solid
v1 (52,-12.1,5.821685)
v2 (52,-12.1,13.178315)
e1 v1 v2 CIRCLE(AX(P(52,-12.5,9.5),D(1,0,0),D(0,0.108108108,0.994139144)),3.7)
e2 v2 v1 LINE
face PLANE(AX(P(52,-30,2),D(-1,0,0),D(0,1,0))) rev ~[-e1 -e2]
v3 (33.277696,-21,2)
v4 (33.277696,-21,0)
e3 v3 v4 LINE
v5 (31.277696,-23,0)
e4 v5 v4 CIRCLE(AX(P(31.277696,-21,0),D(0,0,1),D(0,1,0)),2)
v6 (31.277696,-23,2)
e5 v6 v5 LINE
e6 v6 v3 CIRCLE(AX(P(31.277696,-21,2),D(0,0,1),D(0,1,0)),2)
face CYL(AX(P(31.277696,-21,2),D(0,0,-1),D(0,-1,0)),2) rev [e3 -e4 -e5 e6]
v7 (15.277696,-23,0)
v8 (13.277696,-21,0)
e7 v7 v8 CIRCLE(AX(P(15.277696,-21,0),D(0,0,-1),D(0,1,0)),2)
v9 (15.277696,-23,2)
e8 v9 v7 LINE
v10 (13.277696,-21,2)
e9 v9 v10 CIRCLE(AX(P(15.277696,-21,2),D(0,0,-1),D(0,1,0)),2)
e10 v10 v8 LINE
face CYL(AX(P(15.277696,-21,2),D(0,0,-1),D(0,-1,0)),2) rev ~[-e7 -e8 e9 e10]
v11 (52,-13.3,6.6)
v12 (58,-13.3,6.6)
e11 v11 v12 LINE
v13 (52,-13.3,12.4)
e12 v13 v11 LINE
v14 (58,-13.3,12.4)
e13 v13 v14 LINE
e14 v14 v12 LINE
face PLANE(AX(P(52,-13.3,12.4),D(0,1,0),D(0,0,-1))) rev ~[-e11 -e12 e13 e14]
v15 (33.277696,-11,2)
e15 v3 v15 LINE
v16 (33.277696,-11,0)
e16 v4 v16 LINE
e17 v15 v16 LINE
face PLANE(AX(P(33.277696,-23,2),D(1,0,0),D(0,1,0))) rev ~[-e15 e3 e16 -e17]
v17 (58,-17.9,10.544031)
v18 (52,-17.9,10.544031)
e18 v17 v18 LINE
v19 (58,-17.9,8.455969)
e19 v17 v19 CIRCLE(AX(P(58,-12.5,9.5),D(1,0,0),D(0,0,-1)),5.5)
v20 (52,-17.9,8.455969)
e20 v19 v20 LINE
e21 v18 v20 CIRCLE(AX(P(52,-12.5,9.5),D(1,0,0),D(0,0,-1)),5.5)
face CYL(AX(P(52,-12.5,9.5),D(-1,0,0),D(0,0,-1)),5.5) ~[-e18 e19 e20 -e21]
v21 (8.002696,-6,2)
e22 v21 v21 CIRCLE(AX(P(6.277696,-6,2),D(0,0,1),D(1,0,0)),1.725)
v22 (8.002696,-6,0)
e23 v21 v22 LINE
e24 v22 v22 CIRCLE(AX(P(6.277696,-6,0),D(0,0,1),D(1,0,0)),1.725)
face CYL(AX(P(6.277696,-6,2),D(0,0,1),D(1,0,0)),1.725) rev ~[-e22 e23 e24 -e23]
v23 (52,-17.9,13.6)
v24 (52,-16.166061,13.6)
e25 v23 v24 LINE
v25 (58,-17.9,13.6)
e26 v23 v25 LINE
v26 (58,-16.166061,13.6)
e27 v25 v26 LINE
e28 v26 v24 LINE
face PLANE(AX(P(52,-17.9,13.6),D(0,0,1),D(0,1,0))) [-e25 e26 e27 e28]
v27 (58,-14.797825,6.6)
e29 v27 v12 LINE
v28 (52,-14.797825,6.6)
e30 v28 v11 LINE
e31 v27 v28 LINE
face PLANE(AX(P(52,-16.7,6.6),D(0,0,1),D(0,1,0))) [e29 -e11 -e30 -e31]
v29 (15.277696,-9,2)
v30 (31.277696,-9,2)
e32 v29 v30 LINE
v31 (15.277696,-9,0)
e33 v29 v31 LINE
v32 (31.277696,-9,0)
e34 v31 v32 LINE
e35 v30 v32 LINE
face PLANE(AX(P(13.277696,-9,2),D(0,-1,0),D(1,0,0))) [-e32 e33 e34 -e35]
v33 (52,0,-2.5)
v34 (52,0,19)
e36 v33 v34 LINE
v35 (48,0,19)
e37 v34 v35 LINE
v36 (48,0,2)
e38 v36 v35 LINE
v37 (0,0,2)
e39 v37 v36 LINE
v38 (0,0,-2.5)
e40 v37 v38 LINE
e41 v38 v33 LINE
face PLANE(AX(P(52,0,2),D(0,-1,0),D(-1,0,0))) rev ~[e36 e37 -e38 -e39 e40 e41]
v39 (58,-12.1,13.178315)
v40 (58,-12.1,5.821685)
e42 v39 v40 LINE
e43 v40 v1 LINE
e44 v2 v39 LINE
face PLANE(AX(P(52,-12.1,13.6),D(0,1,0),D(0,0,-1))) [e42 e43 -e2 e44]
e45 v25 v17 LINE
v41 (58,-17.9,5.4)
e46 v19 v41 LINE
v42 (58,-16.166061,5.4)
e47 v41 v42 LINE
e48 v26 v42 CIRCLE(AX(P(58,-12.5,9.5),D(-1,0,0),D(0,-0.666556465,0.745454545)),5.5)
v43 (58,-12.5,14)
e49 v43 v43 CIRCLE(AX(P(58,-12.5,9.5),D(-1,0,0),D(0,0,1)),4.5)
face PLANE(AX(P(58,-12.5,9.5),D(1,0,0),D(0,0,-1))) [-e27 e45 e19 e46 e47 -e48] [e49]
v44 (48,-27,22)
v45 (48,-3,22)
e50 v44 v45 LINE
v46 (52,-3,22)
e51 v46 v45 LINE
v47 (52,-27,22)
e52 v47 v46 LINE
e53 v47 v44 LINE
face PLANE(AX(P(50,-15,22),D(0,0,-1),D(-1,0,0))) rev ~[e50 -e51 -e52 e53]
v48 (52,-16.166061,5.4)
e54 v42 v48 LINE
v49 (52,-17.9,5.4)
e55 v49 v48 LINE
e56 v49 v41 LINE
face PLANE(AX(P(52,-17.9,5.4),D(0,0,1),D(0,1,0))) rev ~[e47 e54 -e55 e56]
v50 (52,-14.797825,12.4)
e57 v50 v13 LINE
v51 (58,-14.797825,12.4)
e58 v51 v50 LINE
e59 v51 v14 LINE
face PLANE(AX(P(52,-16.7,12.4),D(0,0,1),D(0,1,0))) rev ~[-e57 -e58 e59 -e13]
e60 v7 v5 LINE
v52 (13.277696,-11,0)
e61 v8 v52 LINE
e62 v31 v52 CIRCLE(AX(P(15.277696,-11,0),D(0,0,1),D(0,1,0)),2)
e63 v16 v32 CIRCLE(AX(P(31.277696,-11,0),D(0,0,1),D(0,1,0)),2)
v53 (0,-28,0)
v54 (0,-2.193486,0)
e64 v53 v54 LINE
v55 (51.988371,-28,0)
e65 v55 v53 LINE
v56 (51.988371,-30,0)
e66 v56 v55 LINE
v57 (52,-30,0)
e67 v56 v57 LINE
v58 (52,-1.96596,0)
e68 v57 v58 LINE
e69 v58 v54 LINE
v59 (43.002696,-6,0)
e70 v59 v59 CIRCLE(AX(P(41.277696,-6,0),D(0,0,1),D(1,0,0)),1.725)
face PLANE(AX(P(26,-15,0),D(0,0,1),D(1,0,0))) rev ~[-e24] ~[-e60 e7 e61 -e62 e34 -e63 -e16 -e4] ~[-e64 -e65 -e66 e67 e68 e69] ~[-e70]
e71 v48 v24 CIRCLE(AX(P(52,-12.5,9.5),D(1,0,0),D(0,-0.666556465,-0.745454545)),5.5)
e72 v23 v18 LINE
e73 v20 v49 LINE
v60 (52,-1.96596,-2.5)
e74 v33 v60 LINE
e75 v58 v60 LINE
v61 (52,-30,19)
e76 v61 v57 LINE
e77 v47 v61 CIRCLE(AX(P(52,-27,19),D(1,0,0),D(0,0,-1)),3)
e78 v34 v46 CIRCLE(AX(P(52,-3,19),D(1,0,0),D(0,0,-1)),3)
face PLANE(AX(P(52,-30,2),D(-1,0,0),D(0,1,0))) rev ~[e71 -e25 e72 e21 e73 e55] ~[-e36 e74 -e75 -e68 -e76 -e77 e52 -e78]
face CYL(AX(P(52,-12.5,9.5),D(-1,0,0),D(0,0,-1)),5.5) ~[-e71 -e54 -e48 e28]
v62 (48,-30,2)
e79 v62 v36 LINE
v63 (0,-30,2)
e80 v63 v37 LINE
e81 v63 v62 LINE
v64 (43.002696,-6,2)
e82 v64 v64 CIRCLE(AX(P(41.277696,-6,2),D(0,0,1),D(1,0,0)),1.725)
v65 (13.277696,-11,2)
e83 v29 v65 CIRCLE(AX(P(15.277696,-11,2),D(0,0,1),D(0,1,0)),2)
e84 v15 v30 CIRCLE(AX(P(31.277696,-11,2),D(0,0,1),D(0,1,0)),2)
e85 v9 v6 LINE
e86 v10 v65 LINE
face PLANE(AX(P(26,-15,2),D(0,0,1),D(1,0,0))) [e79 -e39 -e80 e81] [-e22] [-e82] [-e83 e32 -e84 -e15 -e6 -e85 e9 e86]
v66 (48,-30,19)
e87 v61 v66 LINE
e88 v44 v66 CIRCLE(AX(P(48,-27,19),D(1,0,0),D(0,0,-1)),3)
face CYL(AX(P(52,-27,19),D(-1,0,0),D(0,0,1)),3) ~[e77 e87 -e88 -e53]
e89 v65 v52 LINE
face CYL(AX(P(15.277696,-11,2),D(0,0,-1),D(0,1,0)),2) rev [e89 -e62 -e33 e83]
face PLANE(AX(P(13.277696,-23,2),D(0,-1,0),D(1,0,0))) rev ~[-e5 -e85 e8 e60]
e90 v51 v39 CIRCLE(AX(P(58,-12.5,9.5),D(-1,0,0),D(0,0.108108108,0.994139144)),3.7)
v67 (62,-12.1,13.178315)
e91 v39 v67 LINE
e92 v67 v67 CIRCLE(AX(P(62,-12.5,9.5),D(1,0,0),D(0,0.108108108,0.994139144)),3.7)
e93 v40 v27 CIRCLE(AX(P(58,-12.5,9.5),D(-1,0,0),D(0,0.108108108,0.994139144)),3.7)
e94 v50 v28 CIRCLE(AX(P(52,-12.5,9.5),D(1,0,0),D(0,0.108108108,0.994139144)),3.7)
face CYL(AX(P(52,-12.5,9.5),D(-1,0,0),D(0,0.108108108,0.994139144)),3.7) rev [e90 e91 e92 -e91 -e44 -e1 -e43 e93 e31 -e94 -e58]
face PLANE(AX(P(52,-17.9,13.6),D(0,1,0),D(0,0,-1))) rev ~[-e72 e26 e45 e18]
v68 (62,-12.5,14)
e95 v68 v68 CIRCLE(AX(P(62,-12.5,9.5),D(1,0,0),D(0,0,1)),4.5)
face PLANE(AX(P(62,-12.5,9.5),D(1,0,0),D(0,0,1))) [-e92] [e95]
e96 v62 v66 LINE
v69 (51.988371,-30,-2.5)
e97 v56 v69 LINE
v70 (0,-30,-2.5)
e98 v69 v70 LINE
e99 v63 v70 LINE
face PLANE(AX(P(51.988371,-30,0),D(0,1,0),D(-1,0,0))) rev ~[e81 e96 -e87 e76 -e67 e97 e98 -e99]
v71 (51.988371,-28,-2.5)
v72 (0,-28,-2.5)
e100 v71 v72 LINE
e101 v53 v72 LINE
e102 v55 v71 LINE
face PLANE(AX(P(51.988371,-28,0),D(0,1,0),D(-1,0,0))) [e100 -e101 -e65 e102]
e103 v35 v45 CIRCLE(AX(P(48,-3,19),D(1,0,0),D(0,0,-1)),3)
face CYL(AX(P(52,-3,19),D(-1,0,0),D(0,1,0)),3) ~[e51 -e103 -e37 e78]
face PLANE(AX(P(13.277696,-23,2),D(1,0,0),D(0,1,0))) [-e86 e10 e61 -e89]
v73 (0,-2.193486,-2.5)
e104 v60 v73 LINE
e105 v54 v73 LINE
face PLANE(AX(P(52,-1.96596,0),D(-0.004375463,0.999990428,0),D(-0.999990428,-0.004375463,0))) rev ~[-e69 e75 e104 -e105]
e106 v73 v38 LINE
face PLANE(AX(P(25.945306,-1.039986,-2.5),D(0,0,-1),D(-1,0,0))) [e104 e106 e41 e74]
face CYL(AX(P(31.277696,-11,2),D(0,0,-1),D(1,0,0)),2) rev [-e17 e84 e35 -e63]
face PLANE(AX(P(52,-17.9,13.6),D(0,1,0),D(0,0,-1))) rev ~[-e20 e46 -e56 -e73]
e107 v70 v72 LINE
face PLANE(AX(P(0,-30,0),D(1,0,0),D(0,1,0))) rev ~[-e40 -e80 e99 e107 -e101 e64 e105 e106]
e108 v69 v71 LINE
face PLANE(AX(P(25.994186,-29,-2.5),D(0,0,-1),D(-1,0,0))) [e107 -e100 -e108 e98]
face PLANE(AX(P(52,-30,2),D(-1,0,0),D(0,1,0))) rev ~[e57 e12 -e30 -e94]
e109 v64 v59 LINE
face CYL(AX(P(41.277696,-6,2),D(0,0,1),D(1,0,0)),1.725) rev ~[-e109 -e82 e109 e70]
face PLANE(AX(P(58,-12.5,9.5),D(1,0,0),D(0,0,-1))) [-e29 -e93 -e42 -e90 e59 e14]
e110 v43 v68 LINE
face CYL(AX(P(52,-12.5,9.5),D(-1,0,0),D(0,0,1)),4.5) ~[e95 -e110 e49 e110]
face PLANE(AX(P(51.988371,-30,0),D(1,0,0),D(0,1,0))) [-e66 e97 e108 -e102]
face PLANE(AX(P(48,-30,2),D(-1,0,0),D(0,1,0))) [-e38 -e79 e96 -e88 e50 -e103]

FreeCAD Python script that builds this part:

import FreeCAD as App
import Part
import Sketcher

V = App.Vector
Q = App.Units.Quantity


def edges_at(feature, points):
    """Names of the edges that pass closest to the given points."""
    edges = feature.Shape.Edges
    near = lambda p: min(range(len(edges)), key=lambda i: edges[i].distToShape(Part.Vertex(*p))[0])
    return sorted({f"Edge{near(p) + 1}" for p in points})

doc = App.newDocument("Part")
params = doc.addObject("Spreadsheet::Sheet", "Params")
for row, (alias, value) in enumerate([
    ("sketch1_width", "52 mm"),
    ("sketch1_height", "30 mm"),
    ("pad1_length", "2 mm"),
    ("sketch2_width", "4 mm"),
    ("sketch2_height", "30 mm"),
    ("pad2_length", "20 mm"),
    ("fillet_radius", "3 mm"),
    ("sketch3_diameter", "3.45 mm"),
    ("pocket1_length", "2 mm"),
    ("sketch4_width", "52 mm"),
    ("sketch4_height", "2 mm"),
    ("pad3_length", "2.5 mm"),
    ("sketch5_width", "20 mm"),
    ("sketch5_height", "14 mm"),
    ("pocket2_length", "2 mm"),
    ("sketch6_width", "5.8 mm"),
    ("sketch6_width2", "3.4 mm"),
    ("sketch6_height", "8.2 mm"),
    ("pad4_length", "6 mm"),
    ("sketch7_diameter", "11 mm"),
    ("sketch7_diameter2", "8.5 mm"),
    ("pad5_length", "6 mm"),
    ("sketch8_diameter", "9 mm"),
    ("sketch8_diameter2", "7.4 mm"),
    ("pad6_length", "10 mm"),
    ("fillet2_radius", "2 mm"),
], start=1):
    params.set(f"A{row}", alias)
    params.set(f"B{row}", "=" + value)
    params.setAlias(f"B{row}", alias)

body = doc.addObject("PartDesign::Body", "Body")

sketch1 = body.newObject("Sketcher::SketchObject", "Sketch")
sketch1.AttachmentSupport = (doc.getObject("XY_Plane"), [""])
sketch1.MapMode = "FlatFace"
sketch1.addGeometry(Part.LineSegment(V(0, 0, 0), V(0, -30, 0)), False)
sketch1.addGeometry(Part.LineSegment(V(0, -30, 0), V(52, -30, 0)), False)
sketch1.addGeometry(Part.LineSegment(V(52, -30, 0), V(52, 0, 0)), False)
sketch1.addGeometry(Part.LineSegment(V(52, 0, 0), V(0, 0, 0)), False)
sketch1.addConstraint(Sketcher.Constraint("Coincident", 0, 2, 1, 1))
sketch1.addConstraint(Sketcher.Constraint("Coincident", 1, 2, 2, 1))
sketch1.addConstraint(Sketcher.Constraint("Coincident", 2, 2, 3, 1))
sketch1.addConstraint(Sketcher.Constraint("Coincident", 3, 2, 0, 1))
sketch1.addConstraint(Sketcher.Constraint("Vertical", 0))
sketch1.addConstraint(Sketcher.Constraint("Horizontal", 1))
sketch1.addConstraint(Sketcher.Constraint("Vertical", 2))
sketch1.addConstraint(Sketcher.Constraint("Horizontal", 3))
sketch1.addConstraint(Sketcher.Constraint("Coincident", 3, 2, -1, 1))
sketch1.addConstraint(Sketcher.Constraint("DistanceX", 1, 1, 1, 2, Q("52 mm")))
sketch1.addConstraint(Sketcher.Constraint("DistanceY", 0, 2, 0, 1, Q("30 mm")))
sketch1.setExpression("Constraints[9]", "Params.sketch1_width")
sketch1.setExpression("Constraints[10]", "Params.sketch1_height")
pad1 = body.newObject("PartDesign::Pad", "Pad")
pad1.Profile = sketch1
pad1.setExpression("Length", "Params.pad1_length")

sketch2 = body.newObject("Sketcher::SketchObject", "Sketch001")
sketch2.AttachmentSupport = (doc.getObject("XY_Plane"), [""])
sketch2.MapMode = "FlatFace"
sketch2.AttachmentOffset = App.Placement(V(0, 0, 2), App.Rotation())
sketch2.addGeometry(Part.LineSegment(V(52, 0, 0), V(52, -30, 0)), False)
sketch2.addGeometry(Part.LineSegment(V(52, -30, 0), V(48, -30, 0)), False)
sketch2.addGeometry(Part.LineSegment(V(48, -30, 0), V(48, 0, 0)), False)
sketch2.addGeometry(Part.LineSegment(V(48, 0, 0), V(52, 0, 0)), False)
sketch2.addConstraint(Sketcher.Constraint("Coincident", 0, 2, 1, 1))
sketch2.addConstraint(Sketcher.Constraint("Coincident", 1, 2, 2, 1))
sketch2.addConstraint(Sketcher.Constraint("Coincident", 2, 2, 3, 1))
sketch2.addConstraint(Sketcher.Constraint("Coincident", 3, 2, 0, 1))
sketch2.addConstraint(Sketcher.Constraint("Vertical", 0))
sketch2.addConstraint(Sketcher.Constraint("Horizontal", 1))
sketch2.addConstraint(Sketcher.Constraint("Vertical", 2))
sketch2.addConstraint(Sketcher.Constraint("Horizontal", 3))
sketch2.addConstraint(Sketcher.Constraint("PointOnObject", 2, 2, -1))
sketch2.addConstraint(Sketcher.Constraint("DistanceX", 1, 2, 1, 1, Q("4 mm")))
sketch2.addConstraint(Sketcher.Constraint("DistanceY", 0, 2, 0, 1, Q("30 mm")))
sketch2.addConstraint(Sketcher.Constraint("DistanceX", -1, 1, 0, 2, Q("52 mm")))
sketch2.setExpression("Constraints[9]", "Params.sketch2_width")
sketch2.setExpression("Constraints[10]", "Params.sketch2_height")
pad2 = body.newObject("PartDesign::Pad", "Pad001")
pad2.Profile = sketch2
pad2.setExpression("Length", "Params.pad2_length")
doc.recompute()

fillet = body.newObject("PartDesign::Fillet", "Fillet")
fillet.Base = (pad2, edges_at(pad2, [(50, -30, 22), (50, 0, 22)]))
fillet.setExpression("Radius", "Params.fillet_radius")

sketch3 = body.newObject("Sketcher::SketchObject", "Sketch002")
sketch3.AttachmentSupport = (doc.getObject("XY_Plane"), [""])
sketch3.MapMode = "FlatFace"
sketch3.AttachmentOffset = App.Placement(V(0, 0, 2), App.Rotation())
sketch3.addGeometry(Part.Circle(V(41.3, -6, 0), V(0, 0, 1), 1.7), False)
sketch3.addGeometry(Part.Circle(V(6.3, -6, 0), V(0, 0, 1), 1.7), False)
sketch3.addConstraint(Sketcher.Constraint("Equal", 0, 1))
sketch3.addConstraint(Sketcher.Constraint("Horizontal", 0, 3, 1, 3))
sketch3.addConstraint(Sketcher.Constraint("Diameter", 0, Q("3.45 mm")))
sketch3.addConstraint(Sketcher.Constraint("DistanceY", 0, 3, -1, 1, Q("6 mm")))
sketch3.addConstraint(Sketcher.Constraint("DistanceX", 1, 3, 0, 3, Q("35 mm")))
sketch3.addConstraint(Sketcher.Constraint("DistanceX", -1, 1, 0, 3, Q("41.277696 mm")))
sketch3.setExpression("Constraints[2]", "Params.sketch3_diameter")
pocket1 = body.newObject("PartDesign::Pocket", "Pocket")
pocket1.Profile = sketch3
pocket1.setExpression("Length", "Params.pocket1_length")

sketch4 = body.newObject("Sketcher::SketchObject", "Sketch003")
sketch4.AttachmentSupport = (doc.getObject("XY_Plane"), [""])
sketch4.MapMode = "FlatFace"
sketch4.addGeometry(Part.LineSegment(V(52, -28, 0), V(52, -30, 0)), False)
sketch4.addGeometry(Part.LineSegment(V(52, -30, 0), V(0, -30, 0)), False)
sketch4.addGeometry(Part.LineSegment(V(0, -30, 0), V(0, -28, 0)), False)
sketch4.addGeometry(Part.LineSegment(V(0, -28, 0), V(52, -28, 0)), False)
sketch4.addGeometry(Part.LineSegment(V(52, -2, 0), V(0, -2.2, 0)), False)
sketch4.addGeometry(Part.LineSegment(V(0, -2.2, 0), V(0, 0, 0)), False)
sketch4.addGeometry(Part.LineSegment(V(0, 0, 0), V(52, 0, 0)), False)
sketch4.addGeometry(Part.LineSegment(V(52, 0, 0), V(52, -2, 0)), False)
sketch4.addConstraint(Sketcher.Constraint("Coincident", 0, 2, 1, 1))
sketch4.addConstraint(Sketcher.Constraint("Coincident", 1, 2, 2, 1))
sketch4.addConstraint(Sketcher.Constraint("Coincident", 2, 2, 3, 1))
sketch4.addConstraint(Sketcher.Constraint("Coincident", 3, 2, 0, 1))
sketch4.addConstraint(Sketcher.Constraint("Coincident", 4, 2, 5, 1))
sketch4.addConstraint(Sketcher.Constraint("Coincident", 5, 2, 6, 1))
sketch4.addConstraint(Sketcher.Constraint("Coincident", 6, 2, 7, 1))
sketch4.addConstraint(Sketcher.Constraint("Coincident", 7, 2, 4, 1))
sketch4.addConstraint(Sketcher.Constraint("Vertical", 0))
sketch4.addConstraint(Sketcher.Constraint("Horizontal", 1))
sketch4.addConstraint(Sketcher.Constraint("Vertical", 2))
sketch4.addConstraint(Sketcher.Constraint("Horizontal", 3))
sketch4.addConstraint(Sketcher.Constraint("Vertical", 5))
sketch4.addConstraint(Sketcher.Constraint("Horizontal", 6))
sketch4.addConstraint(Sketcher.Constraint("Vertical", 7))
sketch4.addConstraint(Sketcher.Constraint("Coincident", 5, 2, -1, 1))
sketch4.addConstraint(Sketcher.Constraint("PointOnObject", 1, 2, -2))
sketch4.addConstraint(Sketcher.Constraint("DistanceX", 6, 1, 6, 2, Q("52 mm")))
sketch4.addConstraint(Sketcher.Constraint("DistanceY", 0, 2, 0, 1, Q("2 mm")))
sketch4.addConstraint(Sketcher.Constraint("DistanceY", 0, 2, -1, 1, Q("30 mm")))
sketch4.addConstraint(Sketcher.Constraint("DistanceX", 1, 2, 1, 1, Q("51.988371 mm")))
sketch4.addConstraint(Sketcher.Constraint("DistanceY", 7, 2, 7, 1, Q("1.96596 mm")))
sketch4.addConstraint(Sketcher.Constraint("DistanceY", 5, 1, 5, 2, Q("2.193486 mm")))
sketch4.setExpression("Constraints[17]", "Params.sketch4_width")
sketch4.setExpression("Constraints[18]", "Params.sketch4_height")
pad3 = body.newObject("PartDesign::Pad", "Pad002")
pad3.Profile = sketch4
pad3.setExpression("Length", "Params.pad3_length")
pad3.Reversed = True

sketch5 = body.newObject("Sketcher::SketchObject", "Sketch004")
sketch5.AttachmentSupport = (doc.getObject("XY_Plane"), [""])
sketch5.MapMode = "FlatFace"
sketch5.AttachmentOffset = App.Placement(V(0, 0, 2), App.Rotation())
sketch5.addGeometry(Part.LineSegment(V(13, -9, 0), V(13, -23, 0)), False)
sketch5.addGeometry(Part.LineSegment(V(13, -23, 0), V(33, -23, 0)), False)
sketch5.addGeometry(Part.LineSegment(V(33, -23, 0), V(33, -9, 0)), False)
sketch5.addGeometry(Part.LineSegment(V(33, -9, 0), V(13, -9, 0)), False)
sketch5.addConstraint(Sketcher.Constraint("Coincident", 0, 2, 1, 1))
sketch5.addConstraint(Sketcher.Constraint("Coincident", 1, 2, 2, 1))
sketch5.addConstraint(Sketcher.Constraint("Coincident", 2, 2, 3, 1))
sketch5.addConstraint(Sketcher.Constraint("Coincident", 3, 2, 0, 1))
sketch5.addConstraint(Sketcher.Constraint("Vertical", 0))
sketch5.addConstraint(Sketcher.Constraint("Horizontal", 1))
sketch5.addConstraint(Sketcher.Constraint("Vertical", 2))
sketch5.addConstraint(Sketcher.Constraint("Horizontal", 3))
sketch5.addConstraint(Sketcher.Constraint("DistanceX", 1, 1, 1, 2, Q("20 mm")))
sketch5.addConstraint(Sketcher.Constraint("DistanceY", 0, 2, 0, 1, Q("14 mm")))
sketch5.addConstraint(Sketcher.Constraint("DistanceY", 0, 2, -1, 1, Q("23 mm")))
sketch5.addConstraint(Sketcher.Constraint("DistanceX", -1, 1, 0, 2, Q("13.277696 mm")))
sketch5.setExpression("Constraints[8]", "Params.sketch5_width")
sketch5.setExpression("Constraints[9]", "Params.sketch5_height")
pocket2 = body.newObject("PartDesign::Pocket", "Pocket001")
pocket2.Profile = sketch5
pocket2.setExpression("Length", "Params.pocket2_length")

sketch6 = body.newObject("Sketcher::SketchObject", "Sketch005")
sketch6.AttachmentSupport = (doc.getObject("YZ_Plane"), [""])
sketch6.MapMode = "FlatFace"
sketch6.AttachmentOffset = App.Placement(V(0, 0, 52), App.Rotation())
sketch6.addGeometry(Part.LineSegment(V(-12.1, 13.6, 0), V(-17.9, 13.6, 0)), False)
sketch6.addGeometry(Part.LineSegment(V(-17.9, 13.6, 0), V(-17.9, 5.4, 0)), False)
sketch6.addGeometry(Part.LineSegment(V(-17.9, 5.4, 0), V(-12.1, 5.4, 0)), False)
sketch6.addGeometry(Part.LineSegment(V(-12.1, 5.4, 0), V(-12.1, 13.6, 0)), False)
sketch6.addGeometry(Part.LineSegment(V(-16.7, 6.6, 0), V(-16.7, 12.4, 0)), False)
sketch6.addGeometry(Part.LineSegment(V(-16.7, 12.4, 0), V(-13.3, 12.4, 0)), False)
sketch6.addGeometry(Part.LineSegment(V(-13.3, 12.4, 0), V(-13.3, 6.6, 0)), False)
sketch6.addGeometry(Part.LineSegment(V(-13.3, 6.6, 0), V(-16.7, 6.6, 0)), False)
sketch6.addConstraint(Sketcher.Constraint("Coincident", 0, 2, 1, 1))
sketch6.addConstraint(Sketcher.Constraint("Coincident", 1, 2, 2, 1))
sketch6.addConstraint(Sketcher.Constraint("Coincident", 2, 2, 3, 1))
sketch6.addConstraint(Sketcher.Constraint("Coincident", 3, 2, 0, 1))
sketch6.addConstraint(Sketcher.Constraint("Coincident", 4, 2, 5, 1))
sketch6.addConstraint(Sketcher.Constraint("Coincident", 5, 2, 6, 1))
sketch6.addConstraint(Sketcher.Constraint("Coincident", 6, 2, 7, 1))
sketch6.addConstraint(Sketcher.Constraint("Coincident", 7, 2, 4, 1))
sketch6.addConstraint(Sketcher.Constraint("Horizontal", 0))
sketch6.addConstraint(Sketcher.Constraint("Vertical", 1))
sketch6.addConstraint(Sketcher.Constraint("Horizontal", 2))
sketch6.addConstraint(Sketcher.Constraint("Vertical", 3))
sketch6.addConstraint(Sketcher.Constraint("Vertical", 4))
sketch6.addConstraint(Sketcher.Constraint("Horizontal", 5))
sketch6.addConstraint(Sketcher.Constraint("Vertical", 6))
sketch6.addConstraint(Sketcher.Constraint("Horizontal", 7))
sketch6.addConstraint(Sketcher.Constraint("Equal", 2, 4))
sketch6.addConstraint(Sketcher.Constraint("DistanceX", 0, 2, 0, 1, Q("5.8 mm")))
sketch6.addConstraint(Sketcher.Constraint("DistanceX", 5, 1, 5, 2, Q("3.4 mm")))
sketch6.addConstraint(Sketcher.Constraint("DistanceY", 1, 2, 1, 1, Q("8.2 mm")))
sketch6.addConstraint(Sketcher.Constraint("DistanceY", 1, 2, 4, 2, Q("7 mm")))
sketch6.addConstraint(Sketcher.Constraint("DistanceX", 0, 2, -1, 1, Q("17.9 mm")))
sketch6.addConstraint(Sketcher.Constraint("DistanceY", -1, 1, 0, 2, Q("13.6 mm")))
sketch6.addConstraint(Sketcher.Constraint("DistanceX", 4, 2, -1, 1, Q("16.7 mm")))
sketch6.setExpression("Constraints[17]", "Params.sketch6_width")
sketch6.setExpression("Constraints[18]", "Params.sketch6_width2")
sketch6.setExpression("Constraints[19]", "Params.sketch6_height")
pad4 = body.newObject("PartDesign::Pad", "Pad003")
pad4.Profile = sketch6
pad4.setExpression("Length", "Params.pad4_length")

sketch7 = body.newObject("Sketcher::SketchObject", "Sketch006")
sketch7.AttachmentSupport = (doc.getObject("YZ_Plane"), [""])
sketch7.MapMode = "FlatFace"
sketch7.AttachmentOffset = App.Placement(V(0, 0, 52), App.Rotation())
sketch7.addGeometry(Part.Circle(V(-12.5, 9.5, 0), V(0, 0, 1), 5.5), False)
sketch7.addGeometry(Part.Circle(V(-12.5, 9.5, 0), V(0, 0, 1), 4.2), False)
sketch7.addConstraint(Sketcher.Constraint("Coincident", 1, 3, 0, 3))
sketch7.addConstraint(Sketcher.Constraint("Diameter", 0, Q("11 mm")))
sketch7.addConstraint(Sketcher.Constraint("Diameter", 1, Q("8.5 mm")))
sketch7.addConstraint(Sketcher.Constraint("DistanceX", 0, 3, -1, 1, Q("12.5 mm")))
sketch7.addConstraint(Sketcher.Constraint("DistanceY", -1, 1, 0, 3, Q("9.5 mm")))
sketch7.setExpression("Constraints[1]", "Params.sketch7_diameter")
sketch7.setExpression("Constraints[2]", "Params.sketch7_diameter2")
pad5 = body.newObject("PartDesign::Pad", "Pad004")
pad5.Profile = sketch7
pad5.setExpression("Length", "Params.pad5_length")

sketch8 = body.newObject("Sketcher::SketchObject", "Sketch007")
sketch8.AttachmentSupport = (doc.getObject("YZ_Plane"), [""])
sketch8.MapMode = "FlatFace"
sketch8.AttachmentOffset = App.Placement(V(0, 0, 52), App.Rotation())
sketch8.addGeometry(Part.Circle(V(-12.5, 9.5, 0), V(0, 0, 1), 4.5), False)
sketch8.addGeometry(Part.Circle(V(-12.5, 9.5, 0), V(0, 0, 1), 3.7), False)
sketch8.addConstraint(Sketcher.Constraint("Coincident", 1, 3, 0, 3))
sketch8.addConstraint(Sketcher.Constraint("Diameter", 0, Q("9 mm")))
sketch8.addConstraint(Sketcher.Constraint("Diameter", 1, Q("7.4 mm")))
sketch8.addConstraint(Sketcher.Constraint("DistanceX", 0, 3, -1, 1, Q("12.5 mm")))
sketch8.addConstraint(Sketcher.Constraint("DistanceY", -1, 1, 0, 3, Q("9.5 mm")))
sketch8.setExpression("Constraints[1]", "Params.sketch8_diameter")
sketch8.setExpression("Constraints[2]", "Params.sketch8_diameter2")
pad6 = body.newObject("PartDesign::Pad", "Pad005")
pad6.Profile = sketch8
pad6.setExpression("Length", "Params.pad6_length")
doc.recompute()

fillet2 = body.newObject("PartDesign::Fillet", "Fillet001")
fillet2.Base = (pad6, edges_at(pad6, [
    (33.278, -9, 1),
    (33.278, -23, 1),
    (13.278, -23, 1),
    (13.278, -9, 1),
]))
fillet2.setExpression("Radius", "Params.fillet2_radius")

doc.recompute()
